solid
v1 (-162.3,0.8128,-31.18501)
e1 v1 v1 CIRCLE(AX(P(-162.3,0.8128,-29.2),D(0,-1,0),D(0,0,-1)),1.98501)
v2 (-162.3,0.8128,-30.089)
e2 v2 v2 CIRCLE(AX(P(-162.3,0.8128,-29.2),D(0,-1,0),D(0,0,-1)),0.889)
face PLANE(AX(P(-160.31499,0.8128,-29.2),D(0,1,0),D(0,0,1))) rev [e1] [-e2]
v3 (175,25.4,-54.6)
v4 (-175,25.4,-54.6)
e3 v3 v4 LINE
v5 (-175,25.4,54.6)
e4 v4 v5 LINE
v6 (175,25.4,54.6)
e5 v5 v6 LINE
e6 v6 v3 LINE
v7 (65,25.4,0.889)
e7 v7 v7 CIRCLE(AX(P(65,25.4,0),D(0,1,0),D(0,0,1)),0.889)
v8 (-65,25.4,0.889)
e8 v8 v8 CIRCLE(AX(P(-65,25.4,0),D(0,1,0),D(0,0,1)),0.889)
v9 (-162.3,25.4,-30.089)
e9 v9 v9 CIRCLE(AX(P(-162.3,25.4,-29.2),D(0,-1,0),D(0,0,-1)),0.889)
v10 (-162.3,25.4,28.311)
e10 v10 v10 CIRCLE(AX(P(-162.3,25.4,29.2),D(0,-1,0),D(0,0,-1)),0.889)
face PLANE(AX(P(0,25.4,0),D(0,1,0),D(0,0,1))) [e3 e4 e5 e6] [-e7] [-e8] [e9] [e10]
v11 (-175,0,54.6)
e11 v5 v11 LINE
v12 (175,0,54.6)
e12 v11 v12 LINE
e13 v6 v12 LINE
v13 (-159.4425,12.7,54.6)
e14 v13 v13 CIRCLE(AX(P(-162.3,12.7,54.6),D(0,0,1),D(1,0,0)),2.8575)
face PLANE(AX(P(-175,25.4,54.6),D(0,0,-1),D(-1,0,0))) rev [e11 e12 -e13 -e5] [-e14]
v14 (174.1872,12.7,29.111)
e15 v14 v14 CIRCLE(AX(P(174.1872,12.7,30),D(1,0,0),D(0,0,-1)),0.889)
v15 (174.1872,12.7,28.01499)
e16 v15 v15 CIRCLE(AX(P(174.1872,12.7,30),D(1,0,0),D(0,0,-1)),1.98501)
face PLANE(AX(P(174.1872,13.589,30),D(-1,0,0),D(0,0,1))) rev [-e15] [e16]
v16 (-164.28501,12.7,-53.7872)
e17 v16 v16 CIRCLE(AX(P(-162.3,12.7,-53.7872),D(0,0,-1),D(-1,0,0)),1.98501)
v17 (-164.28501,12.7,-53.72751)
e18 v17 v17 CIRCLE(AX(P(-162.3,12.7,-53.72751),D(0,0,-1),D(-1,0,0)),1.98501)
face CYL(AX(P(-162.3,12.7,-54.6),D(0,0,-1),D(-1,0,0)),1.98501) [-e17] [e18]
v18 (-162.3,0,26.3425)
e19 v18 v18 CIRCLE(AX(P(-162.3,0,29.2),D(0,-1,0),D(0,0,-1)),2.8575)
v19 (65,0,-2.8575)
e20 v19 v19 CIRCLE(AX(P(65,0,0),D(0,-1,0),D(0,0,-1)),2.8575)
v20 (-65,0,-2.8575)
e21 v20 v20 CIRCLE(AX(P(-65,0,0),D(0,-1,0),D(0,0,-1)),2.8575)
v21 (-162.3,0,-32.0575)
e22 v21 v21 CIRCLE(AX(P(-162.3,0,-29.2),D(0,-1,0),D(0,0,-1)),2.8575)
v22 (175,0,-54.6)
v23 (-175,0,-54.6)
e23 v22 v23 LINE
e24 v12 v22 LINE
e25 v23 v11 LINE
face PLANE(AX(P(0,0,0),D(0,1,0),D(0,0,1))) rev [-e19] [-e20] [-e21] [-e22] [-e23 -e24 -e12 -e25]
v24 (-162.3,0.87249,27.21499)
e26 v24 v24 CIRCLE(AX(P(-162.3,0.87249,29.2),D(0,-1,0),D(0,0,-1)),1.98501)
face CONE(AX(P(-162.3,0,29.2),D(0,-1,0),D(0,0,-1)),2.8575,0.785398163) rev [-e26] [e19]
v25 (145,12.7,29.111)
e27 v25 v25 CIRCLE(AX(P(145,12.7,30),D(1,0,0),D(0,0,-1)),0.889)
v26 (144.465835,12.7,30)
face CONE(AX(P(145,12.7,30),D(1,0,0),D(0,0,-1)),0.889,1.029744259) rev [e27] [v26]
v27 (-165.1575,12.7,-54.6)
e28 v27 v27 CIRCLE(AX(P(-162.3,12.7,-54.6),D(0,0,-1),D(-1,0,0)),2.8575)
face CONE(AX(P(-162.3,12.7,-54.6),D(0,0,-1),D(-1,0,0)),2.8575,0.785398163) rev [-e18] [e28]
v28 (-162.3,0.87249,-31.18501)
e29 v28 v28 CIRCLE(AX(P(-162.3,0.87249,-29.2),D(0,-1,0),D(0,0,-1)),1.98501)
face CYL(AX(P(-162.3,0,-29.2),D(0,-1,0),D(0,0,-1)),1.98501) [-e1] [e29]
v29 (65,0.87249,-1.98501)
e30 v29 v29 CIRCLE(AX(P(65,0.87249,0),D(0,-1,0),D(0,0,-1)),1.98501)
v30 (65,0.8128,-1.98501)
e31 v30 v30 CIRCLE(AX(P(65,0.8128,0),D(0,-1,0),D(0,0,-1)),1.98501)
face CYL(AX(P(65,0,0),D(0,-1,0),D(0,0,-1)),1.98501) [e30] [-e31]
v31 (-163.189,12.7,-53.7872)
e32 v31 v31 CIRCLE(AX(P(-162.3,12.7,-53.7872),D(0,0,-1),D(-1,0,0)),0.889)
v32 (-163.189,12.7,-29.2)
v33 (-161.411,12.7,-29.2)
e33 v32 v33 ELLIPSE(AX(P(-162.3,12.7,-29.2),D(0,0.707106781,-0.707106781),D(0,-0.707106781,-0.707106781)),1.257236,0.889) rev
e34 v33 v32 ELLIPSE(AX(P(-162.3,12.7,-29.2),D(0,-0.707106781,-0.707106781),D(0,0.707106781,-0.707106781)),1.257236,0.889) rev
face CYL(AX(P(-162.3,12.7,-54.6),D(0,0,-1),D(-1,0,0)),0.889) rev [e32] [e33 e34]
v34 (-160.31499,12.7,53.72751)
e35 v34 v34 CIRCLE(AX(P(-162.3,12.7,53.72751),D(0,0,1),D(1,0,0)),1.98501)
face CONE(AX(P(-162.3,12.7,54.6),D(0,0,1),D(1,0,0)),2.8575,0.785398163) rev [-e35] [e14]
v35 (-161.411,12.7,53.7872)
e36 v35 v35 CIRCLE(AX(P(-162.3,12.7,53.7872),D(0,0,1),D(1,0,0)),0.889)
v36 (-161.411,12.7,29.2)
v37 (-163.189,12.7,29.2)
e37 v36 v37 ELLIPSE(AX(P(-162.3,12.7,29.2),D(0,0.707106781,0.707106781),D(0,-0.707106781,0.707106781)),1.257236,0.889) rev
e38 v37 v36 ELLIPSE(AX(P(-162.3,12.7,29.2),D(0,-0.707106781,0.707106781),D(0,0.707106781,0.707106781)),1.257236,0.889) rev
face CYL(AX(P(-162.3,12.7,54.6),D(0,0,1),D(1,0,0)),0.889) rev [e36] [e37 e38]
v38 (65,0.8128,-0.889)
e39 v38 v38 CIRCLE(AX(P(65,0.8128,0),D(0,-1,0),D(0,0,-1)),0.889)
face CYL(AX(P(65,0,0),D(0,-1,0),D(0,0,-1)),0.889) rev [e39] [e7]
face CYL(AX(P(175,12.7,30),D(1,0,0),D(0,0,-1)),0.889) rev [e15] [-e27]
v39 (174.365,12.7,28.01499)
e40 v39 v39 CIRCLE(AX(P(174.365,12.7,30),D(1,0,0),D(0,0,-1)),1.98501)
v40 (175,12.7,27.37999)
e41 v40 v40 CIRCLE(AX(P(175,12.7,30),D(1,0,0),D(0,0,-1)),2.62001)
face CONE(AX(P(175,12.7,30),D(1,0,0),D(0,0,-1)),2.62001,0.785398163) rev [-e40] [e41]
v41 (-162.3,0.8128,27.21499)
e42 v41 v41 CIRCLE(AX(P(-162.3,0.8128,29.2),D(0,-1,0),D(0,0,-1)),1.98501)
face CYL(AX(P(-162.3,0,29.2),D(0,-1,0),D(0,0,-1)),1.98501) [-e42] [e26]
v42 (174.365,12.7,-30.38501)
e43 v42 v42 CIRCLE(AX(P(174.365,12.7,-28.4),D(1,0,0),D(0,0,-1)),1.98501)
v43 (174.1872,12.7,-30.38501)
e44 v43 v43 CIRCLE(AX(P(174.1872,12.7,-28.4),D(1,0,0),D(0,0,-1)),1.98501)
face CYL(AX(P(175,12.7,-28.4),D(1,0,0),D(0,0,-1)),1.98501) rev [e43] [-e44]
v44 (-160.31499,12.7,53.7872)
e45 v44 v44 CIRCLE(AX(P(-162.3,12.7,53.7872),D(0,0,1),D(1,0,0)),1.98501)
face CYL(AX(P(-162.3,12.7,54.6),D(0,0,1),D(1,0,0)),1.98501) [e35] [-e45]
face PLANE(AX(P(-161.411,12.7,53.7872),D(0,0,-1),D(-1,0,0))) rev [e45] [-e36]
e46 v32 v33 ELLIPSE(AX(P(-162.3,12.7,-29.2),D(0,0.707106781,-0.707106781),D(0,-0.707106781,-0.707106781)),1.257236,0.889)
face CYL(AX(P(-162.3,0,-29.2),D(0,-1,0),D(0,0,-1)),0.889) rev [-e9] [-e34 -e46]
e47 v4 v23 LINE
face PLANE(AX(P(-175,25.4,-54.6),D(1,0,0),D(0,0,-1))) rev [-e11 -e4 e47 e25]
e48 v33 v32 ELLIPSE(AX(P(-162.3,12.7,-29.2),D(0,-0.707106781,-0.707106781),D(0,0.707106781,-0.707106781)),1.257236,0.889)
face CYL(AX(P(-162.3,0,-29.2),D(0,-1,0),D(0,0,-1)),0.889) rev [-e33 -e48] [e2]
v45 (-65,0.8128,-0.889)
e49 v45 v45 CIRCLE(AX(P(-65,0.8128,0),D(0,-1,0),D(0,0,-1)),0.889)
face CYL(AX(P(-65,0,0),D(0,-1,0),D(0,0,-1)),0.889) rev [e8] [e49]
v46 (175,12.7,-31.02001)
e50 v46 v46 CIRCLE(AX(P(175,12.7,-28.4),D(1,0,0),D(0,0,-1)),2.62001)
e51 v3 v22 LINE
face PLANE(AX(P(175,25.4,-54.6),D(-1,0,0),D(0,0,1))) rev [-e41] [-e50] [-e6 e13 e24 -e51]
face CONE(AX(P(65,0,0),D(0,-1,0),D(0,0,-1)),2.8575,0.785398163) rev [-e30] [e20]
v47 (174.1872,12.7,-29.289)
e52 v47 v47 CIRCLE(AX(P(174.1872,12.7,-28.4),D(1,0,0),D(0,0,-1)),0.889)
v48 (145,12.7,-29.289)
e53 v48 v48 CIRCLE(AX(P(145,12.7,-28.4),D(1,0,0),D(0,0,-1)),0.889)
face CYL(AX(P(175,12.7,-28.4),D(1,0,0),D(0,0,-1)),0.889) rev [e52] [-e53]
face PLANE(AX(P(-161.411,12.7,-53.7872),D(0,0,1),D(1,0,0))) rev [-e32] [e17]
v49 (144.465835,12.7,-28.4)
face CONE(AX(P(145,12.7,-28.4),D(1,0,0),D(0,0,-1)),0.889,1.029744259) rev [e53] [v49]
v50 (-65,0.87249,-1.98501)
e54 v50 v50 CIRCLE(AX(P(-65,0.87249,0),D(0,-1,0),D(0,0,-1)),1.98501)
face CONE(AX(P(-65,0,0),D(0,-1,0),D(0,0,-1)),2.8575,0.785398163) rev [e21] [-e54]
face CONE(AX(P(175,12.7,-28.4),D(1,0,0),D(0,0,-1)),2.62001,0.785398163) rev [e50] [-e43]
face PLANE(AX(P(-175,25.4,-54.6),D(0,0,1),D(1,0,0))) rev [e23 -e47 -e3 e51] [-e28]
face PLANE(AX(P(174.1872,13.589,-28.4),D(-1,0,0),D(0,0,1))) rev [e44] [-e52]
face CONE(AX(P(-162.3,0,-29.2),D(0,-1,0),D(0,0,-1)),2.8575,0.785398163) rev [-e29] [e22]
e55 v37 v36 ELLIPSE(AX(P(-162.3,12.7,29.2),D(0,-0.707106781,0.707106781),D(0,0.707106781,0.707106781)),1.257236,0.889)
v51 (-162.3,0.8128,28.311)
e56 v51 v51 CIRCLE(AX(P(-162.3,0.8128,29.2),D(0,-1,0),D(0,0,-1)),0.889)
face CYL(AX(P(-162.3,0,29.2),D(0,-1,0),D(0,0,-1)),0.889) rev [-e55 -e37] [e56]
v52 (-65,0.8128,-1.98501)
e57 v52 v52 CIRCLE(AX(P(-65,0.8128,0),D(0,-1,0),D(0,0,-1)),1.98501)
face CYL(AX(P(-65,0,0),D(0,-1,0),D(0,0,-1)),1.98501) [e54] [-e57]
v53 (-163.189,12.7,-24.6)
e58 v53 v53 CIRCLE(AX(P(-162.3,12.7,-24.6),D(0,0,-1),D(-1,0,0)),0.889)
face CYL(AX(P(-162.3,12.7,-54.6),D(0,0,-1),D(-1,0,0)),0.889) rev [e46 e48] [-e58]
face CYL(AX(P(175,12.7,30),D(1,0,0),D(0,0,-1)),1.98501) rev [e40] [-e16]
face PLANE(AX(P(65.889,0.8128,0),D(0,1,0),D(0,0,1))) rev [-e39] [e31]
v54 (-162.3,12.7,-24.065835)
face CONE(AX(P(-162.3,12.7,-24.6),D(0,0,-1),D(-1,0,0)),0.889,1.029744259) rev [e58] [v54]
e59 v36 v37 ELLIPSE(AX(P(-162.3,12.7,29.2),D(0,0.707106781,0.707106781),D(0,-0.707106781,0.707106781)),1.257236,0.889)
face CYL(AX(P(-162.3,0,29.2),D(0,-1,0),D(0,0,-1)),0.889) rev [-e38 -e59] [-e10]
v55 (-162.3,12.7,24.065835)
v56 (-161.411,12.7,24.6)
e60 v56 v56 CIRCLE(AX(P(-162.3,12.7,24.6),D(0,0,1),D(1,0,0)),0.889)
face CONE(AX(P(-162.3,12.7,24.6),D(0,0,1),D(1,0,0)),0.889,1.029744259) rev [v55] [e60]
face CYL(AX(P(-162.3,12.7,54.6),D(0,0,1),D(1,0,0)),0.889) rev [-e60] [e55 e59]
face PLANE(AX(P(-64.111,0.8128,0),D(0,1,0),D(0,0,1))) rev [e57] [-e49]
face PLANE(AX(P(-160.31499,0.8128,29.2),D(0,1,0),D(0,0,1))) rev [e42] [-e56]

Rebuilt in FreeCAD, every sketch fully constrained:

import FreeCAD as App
import Part
import Sketcher

V = App.Vector
Q = App.Units.Quantity

doc = App.newDocument("Part")
body = doc.addObject("PartDesign::Body", "Body")

# Sketch on XZ plane
sketch1 = doc.addObject("Sketcher::SketchObject", "Sketch")
body.addObject(sketch1)
sketch1.AttachmentSupport = (doc.XZ_Plane, [""])
sketch1.MapMode = "FlatFace"
sketch1.addGeometry([
    Part.LineSegment(V(-175, -55, 0), V(-175, 55, 0)),
    Part.LineSegment(V(-175, 55, 0), V(175, 55, 0)),
    Part.LineSegment(V(175, 55, 0), V(175, -55, 0)),
    Part.LineSegment(V(175, -55, 0), V(-175, -55, 0)),
], False)
sketch1.addConstraint([
    Sketcher.Constraint("Coincident", 0, 2, 1, 1),
    Sketcher.Constraint("Coincident", 1, 2, 2, 1),
    Sketcher.Constraint("Coincident", 2, 2, 3, 1),
    Sketcher.Constraint("Coincident", 3, 2, 0, 1),
    Sketcher.Constraint("Vertical", 0),
    Sketcher.Constraint("Horizontal", 1),
    Sketcher.Constraint("Vertical", 2),
    Sketcher.Constraint("Horizontal", 3),
    Sketcher.Constraint("Symmetric", 0, 2, 2, 2, -1, 1),
    Sketcher.Constraint("DistanceX", 1, 1, 1, 2, Q("350 mm")),
    Sketcher.Constraint("DistanceY", 0, 1, 0, 2, Q("109.2 mm")),
])
pad1 = doc.addObject("PartDesign::Pad", "Pad")
body.addObject(pad1)
pad1.Profile = sketch1
pad1.Length = Q("1 in")
pad1.Reversed = True

# Sketch on YZ plane
sketch2 = doc.addObject("Sketcher::SketchObject", "Sketch001")
body.addObject(sketch2)
sketch2.AttachmentSupport = (doc.YZ_Plane, [""])
sketch2.MapMode = "FlatFace"
sketch2.AttachmentOffset = App.Placement(V(0, 0, -162.3), App.Rotation())
sketch2.addGeometry([
    Part.LineSegment(V(12.7, 24.07, 0), V(12.7, 54.6, 0)),  # 0
    Part.LineSegment(V(12.7, 54.6, 0), V(9.84, 54.6, 0)),  # 1
    Part.LineSegment(V(9.84, 54.6, 0), V(10.71, 53.73, 0)),  # 2
    Part.LineSegment(V(10.71, 53.73, 0), V(10.71, 53.79, 0)),  # 3
    Part.LineSegment(V(10.71, 53.79, 0), V(11.81, 53.79, 0)),  # 4
    Part.LineSegment(V(11.81, 53.79, 0), V(11.81, 24.6, 0)),  # 5
    Part.LineSegment(V(11.81, 24.6, 0), V(12.7, 24.07, 0)),  # 6
], False)
sketch2.addGeometry(Part.LineSegment(V(12.7, 54.6, 0), V(12.7, 24.07, 0)), True)  # axis
sketch2.addConstraint([
    Sketcher.Constraint("Coincident", 0, 2, 1, 1),
    Sketcher.Constraint("Coincident", 1, 2, 2, 1),
    Sketcher.Constraint("Coincident", 2, 2, 3, 1),
    Sketcher.Constraint("Coincident", 3, 2, 4, 1),
    Sketcher.Constraint("Coincident", 4, 2, 5, 1),
    Sketcher.Constraint("Coincident", 5, 2, 6, 1),
    Sketcher.Constraint("Coincident", 6, 2, 0, 1),
    Sketcher.Constraint("Vertical", 0),
    Sketcher.Constraint("Horizontal", 1),
    Sketcher.Constraint("Vertical", 3),
    Sketcher.Constraint("Horizontal", 4),
    Sketcher.Constraint("Vertical", 5),
    Sketcher.Constraint("Vertical", 7),
    Sketcher.Constraint("Coincident", 7, 1, 0, 2),
    Sketcher.Constraint("Equal", 0, 7),
    Sketcher.Constraint("Angle", 2, Q("-45 deg")),
    Sketcher.Constraint("Angle", 6, Q("-31 deg")),
    Sketcher.Constraint("DistanceX", -1, 1, 0, 2, Q("0.5 in")),
    Sketcher.Constraint("DistanceX", 1, 2, 1, 1, Q("0.1125 in")),
    Sketcher.Constraint("DistanceX", -1, 1, 4, 2, Q("0.465 in")),
    Sketcher.Constraint("DistanceY", 3, 2, 1, 2, Q("0.032 in")),
    Sketcher.Constraint("DistanceY", 5, 2, 5, 1, Q("29.1872 mm")),
    Sketcher.Constraint("DistanceX", 4, 1, 4, 2, Q("1.09601 mm")),
    Sketcher.Constraint("DistanceY", -1, 1, 0, 2, Q("54.6 mm")),
])
groove = doc.addObject("PartDesign::Groove", "Groove")
body.addObject(groove)
groove.Profile = sketch2
groove.ReferenceAxis = (sketch2, ["Axis0"])
groove.Angle = 360
doc.recompute()

mirrored = doc.addObject("PartDesign::Mirrored", "Mirrored")
body.addObject(mirrored)
mirrored.Originals = [groove]
mirrored.MirrorPlane = (doc.XY_Plane, [""])
body.Tip = mirrored

# Sketch on XZ plane
sketch3 = doc.addObject("Sketcher::SketchObject", "Sketch002")
body.addObject(sketch3)
sketch3.AttachmentSupport = (doc.XZ_Plane, [""])
sketch3.MapMode = "FlatFace"
sketch3.AttachmentOffset = App.Placement(V(0, 0, -0.5 * 25.4), App.Rotation())
sketch3.addGeometry([
    Part.LineSegment(V(144.47, 30, 0), V(175, 30, 0)),  # 0
    Part.LineSegment(V(175, 30, 0), V(175, 27.38, 0)),  # 1
    Part.LineSegment(V(175, 27.38, 0), V(174.37, 28.01, 0)),  # 2
    Part.LineSegment(V(174.37, 28.01, 0), V(174.19, 28.01, 0)),  # 3
    Part.LineSegment(V(174.19, 28.01, 0), V(174.19, 29.11, 0)),  # 4
    Part.LineSegment(V(174.19, 29.11, 0), V(145, 29.11, 0)),  # 5
    Part.LineSegment(V(145, 29.11, 0), V(144.47, 30, 0)),  # 6
], False)
sketch3.addGeometry(Part.LineSegment(V(175, 30, 0), V(144.47, 30, 0)), True)  # axis
sketch3.addConstraint([
    Sketcher.Constraint("Coincident", 0, 2, 1, 1),
    Sketcher.Constraint("Coincident", 1, 2, 2, 1),
    Sketcher.Constraint("Coincident", 2, 2, 3, 1),
    Sketcher.Constraint("Coincident", 3, 2, 4, 1),
    Sketcher.Constraint("Coincident", 4, 2, 5, 1),
    Sketcher.Constraint("Coincident", 5, 2, 6, 1),
    Sketcher.Constraint("Coincident", 6, 2, 0, 1),
    Sketcher.Constraint("Horizontal", 0),
    Sketcher.Constraint("Vertical", 1),
    Sketcher.Constraint("Horizontal", 3),
    Sketcher.Constraint("Vertical", 4),
    Sketcher.Constraint("Horizontal", 5),
    Sketcher.Constraint("Horizontal", 7),
    Sketcher.Constraint("Coincident", 7, 1, 0, 2),
    Sketcher.Constraint("Equal", 0, 7),
    Sketcher.Constraint("Angle", 2, Q("135 deg")),
    Sketcher.Constraint("Angle", 6, Q("121 deg")),
    Sketcher.Constraint("DistanceX", 3, 2, 3, 1, Q("0.007 in")),
    Sketcher.Constraint("DistanceX", 2, 2, 1, 2, Q("0.025 in")),
    Sketcher.Constraint("DistanceY", 4, 2, 0, 2, Q("0.035 in")),
    Sketcher.Constraint("DistanceX", 5, 2, 5, 1, Q("29.1872 mm")),
    Sketcher.Constraint("DistanceY", 1, 2, 1, 1, Q("2.62001 mm")),
    Sketcher.Constraint("DistanceX", -1, 1, 0, 2, Q("175 mm")),
    Sketcher.Constraint("DistanceY", -1, 1, 0, 2, Q("30 mm")),
])
groove2 = doc.addObject("PartDesign::Groove", "Groove001")
body.addObject(groove2)
groove2.Profile = sketch3
groove2.ReferenceAxis = (sketch3, ["Axis0"])
groove2.Angle = 360
doc.recompute()

linearpattern = doc.addObject("PartDesign::LinearPattern", "LinearPattern")
body.addObject(linearpattern)
linearpattern.Originals = [groove2]
linearpattern.Direction = (doc.Z_Axis, [""])
linearpattern.Mode = "offset"
linearpattern.Offset = 58.4
linearpattern.Occurrences = 2
linearpattern.Reversed = True
body.Tip = linearpattern

# Sketch on YZ plane
sketch4 = doc.addObject("Sketcher::SketchObject", "Sketch003")
body.addObject(sketch4)
sketch4.AttachmentSupport = (doc.YZ_Plane, [""])
sketch4.MapMode = "FlatFace"
sketch4.AttachmentOffset = App.Placement(V(0, 0, -65), App.Rotation())
sketch4.addGeometry([
    Part.LineSegment(V(30.53, 0, 0), V(0, 0, 0)),  # 0
    Part.LineSegment(V(0, 0, 0), V(0, -2.86, 0)),  # 1
    Part.LineSegment(V(0, -2.86, 0), V(0.87, -1.99, 0)),  # 2
    Part.LineSegment(V(0.87, -1.99, 0), V(0.81, -1.99, 0)),  # 3
    Part.LineSegment(V(0.81, -1.99, 0), V(0.81, -0.89, 0)),  # 4
    Part.LineSegment(V(0.81, -0.89, 0), V(30, -0.89, 0)),  # 5
    Part.LineSegment(V(30, -0.89, 0), V(30.53, 0, 0)),  # 6
], False)
sketch4.addConstraint([
    Sketcher.Constraint("Coincident", 0, 2, 1, 1),
    Sketcher.Constraint("Coincident", 1, 2, 2, 1),
    Sketcher.Constraint("Coincident", 2, 2, 3, 1),
    Sketcher.Constraint("Coincident", 3, 2, 4, 1),
    Sketcher.Constraint("Coincident", 4, 2, 5, 1),
    Sketcher.Constraint("Coincident", 5, 2, 6, 1),
    Sketcher.Constraint("Coincident", 6, 2, 0, 1),
    Sketcher.Constraint("Horizontal", 0),
    Sketcher.Constraint("Vertical", 1),
    Sketcher.Constraint("Horizontal", 3),
    Sketcher.Constraint("Vertical", 4),
    Sketcher.Constraint("Horizontal", 5),
    Sketcher.Constraint("Coincident", 0, 2, -1, 1),
    Sketcher.Constraint("Angle", 2, Q("45 deg")),
    Sketcher.Constraint("Angle", 6, Q("59 deg")),
    Sketcher.Constraint("DistanceY", 1, 2, 1, 1, Q("0.1125 in")),
    Sketcher.Constraint("DistanceX", -1, 1, 3, 2, Q("0.032 in")),
    Sketcher.Constraint("DistanceY", 4, 2, -1, 1, Q("0.035 in")),
    Sketcher.Constraint("DistanceX", 5, 1, 5, 2, Q("29.1872 mm")),
    Sketcher.Constraint("DistanceX", 3, 2, 3, 1, Q("0.05969 mm")),
])
groove3 = doc.addObject("PartDesign::Groove", "Groove002")
body.addObject(groove3)
groove3.Profile = sketch4
groove3.ReferenceAxis = (sketch4, ["H_Axis"])
groove3.Angle = 360
doc.recompute()

linearpattern2 = doc.addObject("PartDesign::LinearPattern", "LinearPattern001")
body.addObject(linearpattern2)
linearpattern2.Originals = [groove3]
linearpattern2.Direction = (doc.X_Axis, [""])
linearpattern2.Mode = "offset"
linearpattern2.Offset = 130
linearpattern2.Occurrences = 2
body.Tip = linearpattern2

# Sketch on YZ plane
sketch5 = doc.addObject("Sketcher::SketchObject", "Sketch004")
body.addObject(sketch5)
sketch5.AttachmentSupport = (doc.YZ_Plane, [""])
sketch5.MapMode = "FlatFace"
sketch5.AttachmentOffset = App.Placement(V(0, 0, -162.3), App.Rotation())
sketch5.addGeometry([
    Part.LineSegment(V(25.4, -29.2, 0), V(0, -29.2, 0)),  # 0
    Part.LineSegment(V(0, -29.2, 0), V(0, -32.06, 0)),  # 1
    Part.LineSegment(V(0, -32.06, 0), V(0.87, -31.19, 0)),  # 2
    Part.LineSegment(V(0.87, -31.19, 0), V(0.81, -31.19, 0)),  # 3
    Part.LineSegment(V(0.81, -31.19, 0), V(0.81, -30.09, 0)),  # 4
    Part.LineSegment(V(0.81, -30.09, 0), V(25.4, -30.09, 0)),  # 5
    Part.LineSegment(V(25.4, -30.09, 0), V(25.4, -29.2, 0)),  # 6
], False)
sketch5.addGeometry(Part.LineSegment(V(0, -29.2, 0), V(25.4, -29.2, 0)), True)  # axis
sketch5.addConstraint([
    Sketcher.Constraint("Coincident", 0, 2, 1, 1),
    Sketcher.Constraint("Coincident", 1, 2, 2, 1),
    Sketcher.Constraint("Coincident", 2, 2, 3, 1),
    Sketcher.Constraint("Coincident", 3, 2, 4, 1),
    Sketcher.Constraint("Coincident", 4, 2, 5, 1),
    Sketcher.Constraint("Coincident", 5, 2, 6, 1),
    Sketcher.Constraint("Coincident", 6, 2, 0, 1),
    Sketcher.Constraint("Horizontal", 0),
    Sketcher.Constraint("Vertical", 1),
    Sketcher.Constraint("Horizontal", 3),
    Sketcher.Constraint("Vertical", 4),
    Sketcher.Constraint("Horizontal", 5),
    Sketcher.Constraint("Vertical", 6),
    Sketcher.Constraint("Horizontal", 7),
    Sketcher.Constraint("Coincident", 7, 1, 0, 2),
    Sketcher.Constraint("PointOnObject", 0, 2, -2),
    Sketcher.Constraint("Vertical", 5, 2, 7, 2),
    Sketcher.Constraint("DistanceX", 0, 2, 0, 1, Q("1 in")),
    Sketcher.Constraint("Angle", 2, Q("45 deg")),
    Sketcher.Constraint("DistanceX", 5, 1, 5, 2, Q("0.968 in")),
    Sketcher.Constraint("DistanceY", 6, 1, 6, 2, Q("0.035 in")),
    Sketcher.Constraint("DistanceY", 1, 2, 1, 1, Q("0.1125 in")),
    Sketcher.Constraint("DistanceX", 3, 2, 3, 1, Q("0.05969 mm")),
    Sketcher.Constraint("DistanceY", 0, 2, -1, 1, Q("29.2 mm")),
])
groove4 = doc.addObject("PartDesign::Groove", "Groove003")
body.addObject(groove4)
groove4.Profile = sketch5
groove4.ReferenceAxis = (sketch5, ["Axis0"])
groove4.Angle = 360
doc.recompute()

linearpattern3 = doc.addObject("PartDesign::LinearPattern", "LinearPattern002")
body.addObject(linearpattern3)
linearpattern3.Originals = [groove4]
linearpattern3.Direction = (doc.Z_Axis, [""])
linearpattern3.Mode = "offset"
linearpattern3.Offset = 58.4
linearpattern3.Occurrences = 2
body.Tip = linearpattern3

doc.recompute()
